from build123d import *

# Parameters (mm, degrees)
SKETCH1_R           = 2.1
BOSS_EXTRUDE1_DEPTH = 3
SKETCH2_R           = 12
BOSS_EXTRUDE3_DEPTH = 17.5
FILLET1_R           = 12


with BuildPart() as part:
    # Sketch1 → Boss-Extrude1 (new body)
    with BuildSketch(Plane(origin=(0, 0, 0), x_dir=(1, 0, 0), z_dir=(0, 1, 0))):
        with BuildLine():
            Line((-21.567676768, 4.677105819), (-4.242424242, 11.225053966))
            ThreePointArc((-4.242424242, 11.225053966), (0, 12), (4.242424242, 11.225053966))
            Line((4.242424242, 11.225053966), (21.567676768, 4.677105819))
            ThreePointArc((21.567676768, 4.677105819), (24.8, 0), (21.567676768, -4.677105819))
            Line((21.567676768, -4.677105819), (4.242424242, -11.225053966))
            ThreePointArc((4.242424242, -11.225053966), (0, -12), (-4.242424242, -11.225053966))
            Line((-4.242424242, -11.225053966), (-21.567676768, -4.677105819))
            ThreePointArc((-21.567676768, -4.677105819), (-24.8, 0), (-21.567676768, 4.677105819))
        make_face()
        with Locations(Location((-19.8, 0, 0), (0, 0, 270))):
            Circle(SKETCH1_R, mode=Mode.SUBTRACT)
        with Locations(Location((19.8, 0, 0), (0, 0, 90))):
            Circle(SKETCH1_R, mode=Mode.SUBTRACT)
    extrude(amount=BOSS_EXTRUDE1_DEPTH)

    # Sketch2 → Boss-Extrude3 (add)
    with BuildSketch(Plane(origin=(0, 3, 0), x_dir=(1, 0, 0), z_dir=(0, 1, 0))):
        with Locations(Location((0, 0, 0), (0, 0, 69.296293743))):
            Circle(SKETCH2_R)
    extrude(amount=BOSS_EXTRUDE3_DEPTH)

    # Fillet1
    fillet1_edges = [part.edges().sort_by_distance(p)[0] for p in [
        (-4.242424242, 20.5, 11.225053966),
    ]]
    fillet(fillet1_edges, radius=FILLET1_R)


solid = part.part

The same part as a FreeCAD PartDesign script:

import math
import FreeCAD as App
import Part
import Sketcher
from FreeCAD import Vector


def edges_at(feature, points):
    """Names of the edges that pass closest to the given points."""
    edges = feature.Shape.Edges
    near = lambda p: min(range(len(edges)), key=lambda i: edges[i].distToShape(Part.Vertex(*p))[0])
    return sorted({f"Edge{near(p) + 1}" for p in points})

doc = App.newDocument("Part")
body = doc.addObject("PartDesign::Body", "Body")

sketch1 = body.newObject("Sketcher::SketchObject", "Sketch")
sketch1.AttachmentSupport = (doc.getObject("XZ_Plane"), [""])
sketch1.MapMode = "FlatFace"
sketch1.addGeometry([
    Part.LineSegment(Vector(-4.2, -11.2, 0), Vector(-21.6, -4.7, 0)),
    Part.ArcOfCircle(Part.Circle(Vector(-19.8, 0, 0), Vector(0, 0, 1), 5), math.radians(111), math.radians(249)),
    Part.LineSegment(Vector(-21.6, 4.7, 0), Vector(-4.2, 11.2, 0)),
    Part.ArcOfCircle(Part.Circle(Vector(0, 0, 0), Vector(0, 0, 1), 12), math.radians(69), math.radians(111)),
    Part.LineSegment(Vector(4.2, 11.2, 0), Vector(21.6, 4.7, 0)),
    Part.ArcOfCircle(Part.Circle(Vector(19.8, 0, 0), Vector(0, 0, 1), 5), math.radians(-69), math.radians(69)),
    Part.LineSegment(Vector(21.6, -4.7, 0), Vector(4.2, -11.2, 0)),
    Part.ArcOfCircle(Part.Circle(Vector(0, 0, 0), Vector(0, 0, 1), 12), math.radians(-111), math.radians(-69)),
    Part.Circle(Vector(19.8, 0, 0), Vector(0, 0, 1), 2.1),
    Part.Circle(Vector(-19.8, 0, 0), Vector(0, 0, 1), 2.1),
], False)
sketch1.addConstraint([
    Sketcher.Constraint("Tangent", 0, 2, 1, 2),
    Sketcher.Constraint("Tangent", 1, 1, 2, 1),
    Sketcher.Constraint("Tangent", 2, 2, 3, 2),
    Sketcher.Constraint("Tangent", 3, 1, 4, 1),
    Sketcher.Constraint("Tangent", 4, 2, 5, 2),
    Sketcher.Constraint("Tangent", 5, 1, 6, 1),
    Sketcher.Constraint("Tangent", 6, 2, 7, 2),
    Sketcher.Constraint("Tangent", 7, 1, 0, 1),
    Sketcher.Constraint("Coincident", 3, 3, -1, 1),
    Sketcher.Constraint("Coincident", 7, 3, -1, 1),
    Sketcher.Constraint("Coincident", 8, 3, 5, 3),
    Sketcher.Constraint("Coincident", 9, 3, 1, 3),
    Sketcher.Constraint("Equal", 1, 5),
    Sketcher.Constraint("Equal", 3, 7),
    Sketcher.Constraint("Equal", 8, 9),
    Sketcher.Constraint("Symmetric", 1, 3, 5, 3, -1, 1),
    Sketcher.Constraint("PointOnObject", 1, 3, -1),
    Sketcher.Constraint("Radius", 1, 5.0),
    Sketcher.Constraint("Radius", 3, 12.0),
    Sketcher.Constraint("Diameter", 8, 4.2),
    Sketcher.Constraint("DistanceX", 1, 3, -1, 1, 19.8),
])
pad1 = body.newObject("PartDesign::Pad", "Pad")
pad1.Profile = sketch1
pad1.Length = 3
pad1.Reversed = True

sketch2 = body.newObject("Sketcher::SketchObject", "Sketch001")
sketch2.AttachmentSupport = (doc.getObject("XZ_Plane"), [""])
sketch2.MapMode = "FlatFace"
sketch2.AttachmentOffset = App.Placement(Vector(0, 0, -3), App.Rotation())
sketch2.addGeometry(Part.Circle(Vector(0, 0, 0), Vector(0, 0, 1), 12), False)
sketch2.addConstraint([
    Sketcher.Constraint("Coincident", 0, 3, -1, 1),
    Sketcher.Constraint("Diameter", 0, 24.0),
])
pad2 = body.newObject("PartDesign::Pad", "Pad001")
pad2.Profile = sketch2
pad2.Length = 17.5
pad2.Reversed = True
doc.recompute()

fillet = body.newObject("PartDesign::Fillet", "Fillet")
fillet.Base = (pad2, edges_at(pad2, [(-4.242, 20.5, 11.225)]))
fillet.Radius = 12

doc.recompute()
